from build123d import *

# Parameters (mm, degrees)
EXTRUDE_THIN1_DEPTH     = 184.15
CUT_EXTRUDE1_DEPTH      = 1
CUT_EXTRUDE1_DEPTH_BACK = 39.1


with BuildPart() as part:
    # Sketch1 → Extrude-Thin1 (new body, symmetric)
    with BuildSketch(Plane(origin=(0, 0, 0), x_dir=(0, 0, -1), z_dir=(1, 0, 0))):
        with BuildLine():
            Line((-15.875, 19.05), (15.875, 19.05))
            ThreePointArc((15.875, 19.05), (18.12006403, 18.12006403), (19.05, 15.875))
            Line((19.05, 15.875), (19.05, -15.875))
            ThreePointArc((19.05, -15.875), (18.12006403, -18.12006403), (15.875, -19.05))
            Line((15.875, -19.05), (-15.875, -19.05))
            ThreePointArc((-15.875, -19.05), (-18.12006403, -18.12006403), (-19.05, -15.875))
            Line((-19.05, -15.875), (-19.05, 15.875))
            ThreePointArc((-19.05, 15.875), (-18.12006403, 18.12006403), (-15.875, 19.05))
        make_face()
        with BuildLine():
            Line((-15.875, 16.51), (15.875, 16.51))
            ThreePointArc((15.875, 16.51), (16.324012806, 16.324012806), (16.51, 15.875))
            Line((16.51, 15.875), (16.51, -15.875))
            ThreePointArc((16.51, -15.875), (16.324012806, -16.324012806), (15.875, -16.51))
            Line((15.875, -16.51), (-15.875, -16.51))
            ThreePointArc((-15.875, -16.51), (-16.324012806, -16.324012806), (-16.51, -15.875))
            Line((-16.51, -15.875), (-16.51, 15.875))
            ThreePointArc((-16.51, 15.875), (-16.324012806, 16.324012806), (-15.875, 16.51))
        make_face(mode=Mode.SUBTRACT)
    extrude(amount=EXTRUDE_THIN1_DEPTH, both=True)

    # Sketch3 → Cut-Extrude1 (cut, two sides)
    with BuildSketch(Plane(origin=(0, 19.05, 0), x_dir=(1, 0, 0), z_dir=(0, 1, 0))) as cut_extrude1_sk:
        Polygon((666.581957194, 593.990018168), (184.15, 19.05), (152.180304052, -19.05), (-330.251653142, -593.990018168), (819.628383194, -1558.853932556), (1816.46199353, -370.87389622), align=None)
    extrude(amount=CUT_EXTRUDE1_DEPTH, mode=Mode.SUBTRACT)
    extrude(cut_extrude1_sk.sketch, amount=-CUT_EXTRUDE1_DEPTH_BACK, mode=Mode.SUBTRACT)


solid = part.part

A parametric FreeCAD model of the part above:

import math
import FreeCAD as App
import Part
import Sketcher

V = App.Vector
Q = App.Units.Quantity


def add_polygon(sketch, points):
    """Adds a closed chain of lines whose ends are joined by coincident constraints."""
    first, n = sketch.GeometryCount, len(points)
    for a, b in zip(points, points[1:] + points[:1]):
        sketch.addGeometry(Part.LineSegment(App.Vector(*a, 0), App.Vector(*b, 0)), False)
    for i in range(n):
        sketch.addConstraint(Sketcher.Constraint("Coincident", first + i, 2, first + (i + 1) % n, 1))

doc = App.newDocument("Part")
body = doc.addObject("PartDesign::Body", "Body")

# Sketch on YZ plane
sketch1 = doc.addObject("Sketcher::SketchObject", "Sketch")
body.addObject(sketch1)
sketch1.AttachmentSupport = (doc.YZ_Plane, [""])
sketch1.MapMode = "FlatFace"
sketch1.addGeometry([
    Part.LineSegment(V(19.1, -15.9, 0), V(19.1, 15.9, 0)),  # 0
    Part.ArcOfCircle(Part.Circle(V(15.9, 15.9, 0), V(0, 0, 1), 3.2), math.radians(0), math.radians(90)),  # 1
    Part.LineSegment(V(15.9, 19.1, 0), V(-15.9, 19.1, 0)),  # 2
    Part.ArcOfCircle(Part.Circle(V(-15.9, 15.9, 0), V(0, 0, 1), 3.2), math.radians(90), math.radians(180)),  # 3
    Part.LineSegment(V(-19.1, 15.9, 0), V(-19.1, -15.9, 0)),  # 4
    Part.ArcOfCircle(Part.Circle(V(-15.9, -15.9, 0), V(0, 0, 1), 3.2), math.radians(-180), math.radians(-90)),  # 5
    Part.LineSegment(V(-15.9, -19.1, 0), V(15.9, -19.1, 0)),  # 6
    Part.ArcOfCircle(Part.Circle(V(15.9, -15.9, 0), V(0, 0, 1), 3.2), math.radians(-90), math.radians(0)),  # 7
    Part.LineSegment(V(16.5, 15.9, 0), V(16.5, -15.9, 0)),  # 8
    Part.ArcOfCircle(Part.Circle(V(15.9, -15.9, 0), V(0, 0, 1), 0.6), math.radians(-90), math.radians(0)),  # 9
    Part.LineSegment(V(15.9, -16.5, 0), V(-15.9, -16.5, 0)),  # 10
    Part.ArcOfCircle(Part.Circle(V(-15.9, -15.9, 0), V(0, 0, 1), 0.6), math.radians(180), math.radians(270)),  # 11
    Part.LineSegment(V(-16.5, -15.9, 0), V(-16.5, 15.9, 0)),  # 12
    Part.ArcOfCircle(Part.Circle(V(-15.9, 15.9, 0), V(0, 0, 1), 0.6), math.radians(90), math.radians(180)),  # 13
    Part.LineSegment(V(-15.9, 16.5, 0), V(15.9, 16.5, 0)),  # 14
    Part.ArcOfCircle(Part.Circle(V(15.9, 15.9, 0), V(0, 0, 1), 0.6), math.radians(0), math.radians(90)),  # 15
], False)
sketch1.addConstraint([
    Sketcher.Constraint("Tangent", 0, 2, 1, 1),
    Sketcher.Constraint("Tangent", 1, 2, 2, 1),
    Sketcher.Constraint("Tangent", 2, 2, 3, 1),
    Sketcher.Constraint("Tangent", 3, 2, 4, 1),
    Sketcher.Constraint("Tangent", 4, 2, 5, 1),
    Sketcher.Constraint("Tangent", 5, 2, 6, 1),
    Sketcher.Constraint("Tangent", 6, 2, 7, 1),
    Sketcher.Constraint("Tangent", 7, 2, 0, 1),
    Sketcher.Constraint("Tangent", 8, 2, 9, 2),
    Sketcher.Constraint("Tangent", 9, 1, 10, 1),
    Sketcher.Constraint("Tangent", 10, 2, 11, 2),
    Sketcher.Constraint("Tangent", 11, 1, 12, 1),
    Sketcher.Constraint("Tangent", 12, 2, 13, 2),
    Sketcher.Constraint("Tangent", 13, 1, 14, 1),
    Sketcher.Constraint("Tangent", 14, 2, 15, 2),
    Sketcher.Constraint("Tangent", 15, 1, 8, 1),
    Sketcher.Constraint("Vertical", 0),
    Sketcher.Constraint("Horizontal", 2),
    Sketcher.Constraint("Vertical", 4),
    Sketcher.Constraint("Horizontal", 6),
    Sketcher.Constraint("Vertical", 8),
    Sketcher.Constraint("Horizontal", 10),
    Sketcher.Constraint("Vertical", 12),
    Sketcher.Constraint("Horizontal", 14),
    Sketcher.Constraint("Coincident", 9, 3, 7, 3),
    Sketcher.Constraint("Coincident", 11, 3, 5, 3),
    Sketcher.Constraint("Coincident", 13, 3, 3, 3),
    Sketcher.Constraint("Equal", 1, 3),
    Sketcher.Constraint("Equal", 3, 5),
    Sketcher.Constraint("Equal", 5, 7),
    Sketcher.Constraint("Equal", 13, 15),
    Sketcher.Constraint("Symmetric", 1, 3, 5, 3, -1, 1),
    Sketcher.Constraint("Equal", 14, 0),
    Sketcher.Constraint("Radius", 1, Q("0.125 in")),
    Sketcher.Constraint("Radius", 9, Q("0.025 in")),
    Sketcher.Constraint("DistanceX", 2, 2, 2, 1, Q("1.25 in")),
])
pad1 = doc.addObject("PartDesign::Pad", "Pad")
body.addObject(pad1)
pad1.Profile = sketch1
pad1.Length = Q("14.5 in")
pad1.Midplane = True

# Sketch on XZ plane
sketch2 = doc.addObject("Sketcher::SketchObject", "Sketch001")
body.addObject(sketch2)
sketch2.AttachmentSupport = (doc.XZ_Plane, [""])
sketch2.MapMode = "FlatFace"
sketch2.AttachmentOffset = App.Placement(V(0, 0, -0.75 * 25.4), App.Rotation())
add_polygon(sketch2, [(667, -594), (184, -19), (152, 19), (-330, 594), (820, 1559), (1816, 371)])  # lines 0-5
sketch2.addConstraint([
    Sketcher.Constraint("Parallel", 0, 1),
    Sketcher.Constraint("Parallel", 1, 2),
    Sketcher.Constraint("Perpendicular", 2, 3),
    Sketcher.Constraint("Perpendicular", 3, 4),
    Sketcher.Constraint("Perpendicular", 4, 5),
    Sketcher.Constraint("Equal", 0, 2),
    Sketcher.Constraint("Angle", 0, Q("130 deg")),
    Sketcher.Constraint("DistanceY", 0, 2, 1, 2, Q("1.5 in")),
    Sketcher.Constraint("DistanceX", -1, 1, 0, 2, Q("7.25 in")),
    Sketcher.Constraint("DistanceY", 0, 2, -1, 1, Q("0.75 in")),
    Sketcher.Constraint("Distance", 4, 1550.797799),
    Sketcher.Constraint("Distance", 3, 1501.061781),
])
pocket1 = doc.addObject("PartDesign::Pocket", "Pocket")
body.addObject(pocket1)
pocket1.Profile = sketch2
pocket1.Type = "ThroughAll"
pocket1.Midplane = True

doc.recompute()
